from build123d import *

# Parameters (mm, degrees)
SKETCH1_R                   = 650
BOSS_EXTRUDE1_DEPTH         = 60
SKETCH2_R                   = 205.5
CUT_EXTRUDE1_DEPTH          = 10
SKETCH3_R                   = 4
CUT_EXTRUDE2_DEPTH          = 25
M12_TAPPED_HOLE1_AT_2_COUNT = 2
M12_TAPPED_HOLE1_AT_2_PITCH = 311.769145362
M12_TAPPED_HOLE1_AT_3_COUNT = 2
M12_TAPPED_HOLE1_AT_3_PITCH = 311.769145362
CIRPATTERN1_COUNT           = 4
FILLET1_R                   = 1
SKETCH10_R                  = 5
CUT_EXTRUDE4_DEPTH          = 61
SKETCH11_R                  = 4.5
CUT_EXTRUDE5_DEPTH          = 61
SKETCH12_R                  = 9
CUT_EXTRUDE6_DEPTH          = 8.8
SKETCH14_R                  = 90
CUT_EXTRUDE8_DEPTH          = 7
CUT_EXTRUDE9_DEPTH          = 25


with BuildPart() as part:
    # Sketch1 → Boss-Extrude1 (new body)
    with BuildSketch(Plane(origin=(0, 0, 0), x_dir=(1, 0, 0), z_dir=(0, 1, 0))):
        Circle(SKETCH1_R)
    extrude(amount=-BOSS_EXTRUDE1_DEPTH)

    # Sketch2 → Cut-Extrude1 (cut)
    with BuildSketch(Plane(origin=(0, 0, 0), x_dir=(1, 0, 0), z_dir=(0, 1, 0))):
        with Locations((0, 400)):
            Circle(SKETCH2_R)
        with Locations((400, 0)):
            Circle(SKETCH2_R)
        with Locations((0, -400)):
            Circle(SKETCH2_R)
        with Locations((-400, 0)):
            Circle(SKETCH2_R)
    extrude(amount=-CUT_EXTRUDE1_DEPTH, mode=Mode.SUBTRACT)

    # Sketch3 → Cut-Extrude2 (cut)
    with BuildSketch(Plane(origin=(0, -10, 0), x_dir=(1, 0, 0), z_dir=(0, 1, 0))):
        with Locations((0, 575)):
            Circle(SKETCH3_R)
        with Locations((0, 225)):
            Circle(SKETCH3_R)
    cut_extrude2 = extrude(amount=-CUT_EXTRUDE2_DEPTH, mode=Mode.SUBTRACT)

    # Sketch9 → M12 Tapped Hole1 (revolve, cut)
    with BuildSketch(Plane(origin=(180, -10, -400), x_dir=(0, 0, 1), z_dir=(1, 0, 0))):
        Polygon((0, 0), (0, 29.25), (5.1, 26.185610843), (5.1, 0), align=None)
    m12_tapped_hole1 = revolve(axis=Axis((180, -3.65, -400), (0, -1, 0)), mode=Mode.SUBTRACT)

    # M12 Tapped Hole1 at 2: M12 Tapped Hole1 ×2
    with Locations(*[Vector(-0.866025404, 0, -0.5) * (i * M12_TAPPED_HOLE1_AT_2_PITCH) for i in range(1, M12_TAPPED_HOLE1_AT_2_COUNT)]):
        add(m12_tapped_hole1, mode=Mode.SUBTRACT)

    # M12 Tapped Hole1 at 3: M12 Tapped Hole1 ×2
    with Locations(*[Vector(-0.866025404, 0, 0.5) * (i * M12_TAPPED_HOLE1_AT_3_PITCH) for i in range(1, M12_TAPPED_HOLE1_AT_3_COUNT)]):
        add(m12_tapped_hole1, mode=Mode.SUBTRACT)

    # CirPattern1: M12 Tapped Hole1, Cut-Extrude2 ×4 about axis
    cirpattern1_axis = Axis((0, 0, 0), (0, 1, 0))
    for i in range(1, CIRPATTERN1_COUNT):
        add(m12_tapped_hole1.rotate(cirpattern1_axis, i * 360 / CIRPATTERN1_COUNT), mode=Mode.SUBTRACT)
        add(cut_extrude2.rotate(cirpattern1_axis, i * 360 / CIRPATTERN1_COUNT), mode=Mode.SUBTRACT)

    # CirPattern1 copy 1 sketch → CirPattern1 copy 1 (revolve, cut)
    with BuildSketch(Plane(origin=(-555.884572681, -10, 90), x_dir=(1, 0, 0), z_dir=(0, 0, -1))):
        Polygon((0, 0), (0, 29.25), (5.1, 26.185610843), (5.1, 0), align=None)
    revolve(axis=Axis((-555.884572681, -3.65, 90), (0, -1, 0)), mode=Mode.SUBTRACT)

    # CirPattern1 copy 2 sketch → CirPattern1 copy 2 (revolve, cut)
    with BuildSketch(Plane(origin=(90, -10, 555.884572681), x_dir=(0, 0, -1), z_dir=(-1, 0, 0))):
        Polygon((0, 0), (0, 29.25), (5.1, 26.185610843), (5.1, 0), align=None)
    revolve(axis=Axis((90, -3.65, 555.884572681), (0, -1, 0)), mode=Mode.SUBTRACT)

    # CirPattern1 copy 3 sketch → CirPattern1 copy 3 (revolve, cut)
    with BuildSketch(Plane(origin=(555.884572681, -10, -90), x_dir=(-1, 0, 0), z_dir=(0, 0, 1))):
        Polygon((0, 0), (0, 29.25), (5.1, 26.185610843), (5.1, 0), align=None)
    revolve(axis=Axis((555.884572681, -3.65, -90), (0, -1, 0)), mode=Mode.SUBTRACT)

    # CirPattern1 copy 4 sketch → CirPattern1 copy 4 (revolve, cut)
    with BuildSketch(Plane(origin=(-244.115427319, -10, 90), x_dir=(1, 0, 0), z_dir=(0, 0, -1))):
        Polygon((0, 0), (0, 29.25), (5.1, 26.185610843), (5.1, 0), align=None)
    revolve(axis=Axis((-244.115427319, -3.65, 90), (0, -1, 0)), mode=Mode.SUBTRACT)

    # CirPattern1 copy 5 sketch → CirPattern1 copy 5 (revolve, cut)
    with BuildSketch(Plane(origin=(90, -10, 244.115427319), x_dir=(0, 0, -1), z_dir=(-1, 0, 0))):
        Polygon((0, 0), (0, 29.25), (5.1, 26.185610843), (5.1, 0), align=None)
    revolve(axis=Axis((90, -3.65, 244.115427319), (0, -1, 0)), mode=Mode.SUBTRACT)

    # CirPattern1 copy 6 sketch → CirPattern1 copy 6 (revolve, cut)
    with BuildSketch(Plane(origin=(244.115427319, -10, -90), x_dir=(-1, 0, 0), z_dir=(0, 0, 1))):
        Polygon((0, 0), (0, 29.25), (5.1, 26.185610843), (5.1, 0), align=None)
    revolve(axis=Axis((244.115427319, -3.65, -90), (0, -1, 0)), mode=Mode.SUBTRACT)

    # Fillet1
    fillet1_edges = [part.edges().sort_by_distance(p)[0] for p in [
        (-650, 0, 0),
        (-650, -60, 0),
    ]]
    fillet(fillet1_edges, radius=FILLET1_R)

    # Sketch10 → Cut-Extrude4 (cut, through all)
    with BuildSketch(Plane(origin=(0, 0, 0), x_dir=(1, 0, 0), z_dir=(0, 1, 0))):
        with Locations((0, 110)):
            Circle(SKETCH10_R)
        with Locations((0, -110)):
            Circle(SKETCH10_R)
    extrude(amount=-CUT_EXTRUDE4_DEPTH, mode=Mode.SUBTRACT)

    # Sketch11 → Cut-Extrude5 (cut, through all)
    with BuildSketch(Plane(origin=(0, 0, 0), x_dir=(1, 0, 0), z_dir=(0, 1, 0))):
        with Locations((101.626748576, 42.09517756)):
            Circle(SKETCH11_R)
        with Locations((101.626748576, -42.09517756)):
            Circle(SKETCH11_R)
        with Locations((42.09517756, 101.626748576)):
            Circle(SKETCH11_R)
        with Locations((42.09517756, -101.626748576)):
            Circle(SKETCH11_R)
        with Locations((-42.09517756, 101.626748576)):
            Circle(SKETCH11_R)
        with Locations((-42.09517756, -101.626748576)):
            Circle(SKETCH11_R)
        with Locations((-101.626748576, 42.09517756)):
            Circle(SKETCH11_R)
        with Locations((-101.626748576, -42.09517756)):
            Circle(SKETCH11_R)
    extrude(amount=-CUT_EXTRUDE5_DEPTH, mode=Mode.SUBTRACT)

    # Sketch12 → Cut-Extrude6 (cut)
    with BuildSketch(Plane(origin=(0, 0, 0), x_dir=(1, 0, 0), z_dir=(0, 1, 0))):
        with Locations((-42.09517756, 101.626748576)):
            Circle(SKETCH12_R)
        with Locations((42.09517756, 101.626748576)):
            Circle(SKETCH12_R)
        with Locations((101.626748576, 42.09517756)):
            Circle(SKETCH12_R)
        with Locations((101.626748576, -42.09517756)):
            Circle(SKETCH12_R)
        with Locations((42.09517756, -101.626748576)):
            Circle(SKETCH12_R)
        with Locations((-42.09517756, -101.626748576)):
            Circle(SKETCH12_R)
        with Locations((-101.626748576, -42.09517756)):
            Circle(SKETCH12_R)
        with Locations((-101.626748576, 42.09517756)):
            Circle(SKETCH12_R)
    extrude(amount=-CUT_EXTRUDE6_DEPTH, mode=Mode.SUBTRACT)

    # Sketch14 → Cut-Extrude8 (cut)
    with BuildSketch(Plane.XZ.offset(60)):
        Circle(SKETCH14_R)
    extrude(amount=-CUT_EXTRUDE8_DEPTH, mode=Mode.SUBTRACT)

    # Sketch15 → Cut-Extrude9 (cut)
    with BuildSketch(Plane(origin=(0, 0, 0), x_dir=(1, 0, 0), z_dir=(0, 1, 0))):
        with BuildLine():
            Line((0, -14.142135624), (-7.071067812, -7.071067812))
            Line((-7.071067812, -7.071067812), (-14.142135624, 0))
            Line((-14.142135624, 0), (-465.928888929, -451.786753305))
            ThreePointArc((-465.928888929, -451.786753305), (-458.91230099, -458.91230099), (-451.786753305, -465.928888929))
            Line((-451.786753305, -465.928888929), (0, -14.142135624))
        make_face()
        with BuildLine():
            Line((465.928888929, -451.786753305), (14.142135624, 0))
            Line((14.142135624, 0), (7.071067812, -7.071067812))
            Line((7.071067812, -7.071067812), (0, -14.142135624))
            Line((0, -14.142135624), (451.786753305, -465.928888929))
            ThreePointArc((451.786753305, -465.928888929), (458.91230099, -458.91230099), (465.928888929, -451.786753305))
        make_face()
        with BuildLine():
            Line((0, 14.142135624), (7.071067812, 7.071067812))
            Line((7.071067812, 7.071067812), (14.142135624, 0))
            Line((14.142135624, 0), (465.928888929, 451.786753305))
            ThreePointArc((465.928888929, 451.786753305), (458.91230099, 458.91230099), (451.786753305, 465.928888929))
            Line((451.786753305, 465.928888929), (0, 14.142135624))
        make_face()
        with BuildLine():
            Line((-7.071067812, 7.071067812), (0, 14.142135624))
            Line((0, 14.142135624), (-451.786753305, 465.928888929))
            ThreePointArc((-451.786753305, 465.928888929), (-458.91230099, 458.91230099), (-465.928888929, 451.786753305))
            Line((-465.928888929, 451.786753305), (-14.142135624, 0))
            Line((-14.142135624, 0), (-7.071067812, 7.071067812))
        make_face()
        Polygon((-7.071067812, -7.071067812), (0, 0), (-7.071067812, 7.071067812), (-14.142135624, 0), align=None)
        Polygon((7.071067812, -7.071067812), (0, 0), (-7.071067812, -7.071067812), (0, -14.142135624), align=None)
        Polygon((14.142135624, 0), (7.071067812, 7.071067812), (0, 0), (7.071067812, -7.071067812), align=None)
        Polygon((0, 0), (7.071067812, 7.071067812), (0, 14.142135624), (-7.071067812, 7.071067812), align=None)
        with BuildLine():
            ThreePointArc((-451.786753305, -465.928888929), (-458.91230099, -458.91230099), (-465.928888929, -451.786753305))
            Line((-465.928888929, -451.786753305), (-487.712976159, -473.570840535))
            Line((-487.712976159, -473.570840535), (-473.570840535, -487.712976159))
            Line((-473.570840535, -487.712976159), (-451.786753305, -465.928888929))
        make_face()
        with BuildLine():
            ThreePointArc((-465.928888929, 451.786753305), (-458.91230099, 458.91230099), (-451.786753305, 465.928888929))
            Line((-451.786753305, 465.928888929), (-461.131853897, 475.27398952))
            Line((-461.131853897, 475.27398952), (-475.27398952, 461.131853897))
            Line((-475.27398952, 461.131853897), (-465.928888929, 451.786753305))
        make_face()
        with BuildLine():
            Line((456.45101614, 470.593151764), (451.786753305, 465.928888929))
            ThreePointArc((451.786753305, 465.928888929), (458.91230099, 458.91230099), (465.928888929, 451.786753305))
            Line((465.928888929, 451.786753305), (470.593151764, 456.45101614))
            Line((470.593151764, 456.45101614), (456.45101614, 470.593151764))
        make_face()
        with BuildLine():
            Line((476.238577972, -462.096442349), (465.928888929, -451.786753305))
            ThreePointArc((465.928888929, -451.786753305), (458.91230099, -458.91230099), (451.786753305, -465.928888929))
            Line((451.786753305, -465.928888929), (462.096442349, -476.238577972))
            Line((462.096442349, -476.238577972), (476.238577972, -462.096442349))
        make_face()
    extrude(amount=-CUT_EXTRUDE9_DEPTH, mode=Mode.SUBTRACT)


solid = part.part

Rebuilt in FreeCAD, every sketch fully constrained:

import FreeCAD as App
import Part
import Sketcher
Q = App.Units.Quantity


def edges_at(feature, points):
    """Names of the edges that pass closest to the given points."""
    edges = feature.Shape.Edges
    near = lambda p: min(range(len(edges)), key=lambda i: edges[i].distToShape(Part.Vertex(*p))[0])
    return sorted({f"Edge{near(p) + 1}" for p in points})

doc = App.newDocument("Part")
body = doc.addObject("PartDesign::Body", "Body")

# Sketch on XZ plane
sketch1 = body.newObject("Sketcher::SketchObject", "Sketch")
sketch1.AttachmentSupport = (doc.getObject("XZ_Plane"), [""])
sketch1.MapMode = "FlatFace"
sketch1.addGeometry(Part.Circle(App.Vector(0, 0, 0), App.Vector(0, 0, 1), 650), False)
sketch1.addConstraint(Sketcher.Constraint("Coincident", 0, 3, -1, 1))
sketch1.addConstraint(Sketcher.Constraint("Diameter", 0, 1300.0))
pad1 = body.newObject("PartDesign::Pad", "Pad")
pad1.Profile = sketch1
pad1.Length = 60

# Sketch on XZ plane
sketch2 = body.newObject("Sketcher::SketchObject", "Sketch001")
sketch2.AttachmentSupport = (doc.getObject("XZ_Plane"), [""])
sketch2.MapMode = "FlatFace"
sketch2.addGeometry(Part.Circle(App.Vector(0, -400, 0), App.Vector(0, 0, 1), 206), False)
sketch2.addGeometry(Part.Circle(App.Vector(400, 0, 0), App.Vector(0, 0, 1), 206), False)
sketch2.addGeometry(Part.Circle(App.Vector(0, 400, 0), App.Vector(0, 0, 1), 206), False)
sketch2.addGeometry(Part.Circle(App.Vector(-400, 0, 0), App.Vector(0, 0, 1), 206), False)
sketch2.addConstraint(Sketcher.Constraint("Equal", 0, 1))
sketch2.addConstraint(Sketcher.Constraint("Equal", 1, 2))
sketch2.addConstraint(Sketcher.Constraint("Equal", 2, 3))
sketch2.addConstraint(Sketcher.Constraint("Symmetric", 0, 3, 2, 3, -1, 1))
sketch2.addConstraint(Sketcher.Constraint("Symmetric", 1, 3, 3, 3, -1, 1))
sketch2.addConstraint(Sketcher.Constraint("PointOnObject", 0, 3, -2))
sketch2.addConstraint(Sketcher.Constraint("PointOnObject", 1, 3, -1))
sketch2.addConstraint(Sketcher.Constraint("Diameter", 0, 411.0))
sketch2.addConstraint(Sketcher.Constraint("DistanceY", 0, 3, -1, 1, 400.0))
sketch2.addConstraint(Sketcher.Constraint("DistanceX", -1, 1, 1, 3, 400.0))
pocket1 = body.newObject("PartDesign::Pocket", "Pocket")
pocket1.Profile = sketch2
pocket1.Length = 10
pocket1.Reversed = True

# Sketch on XZ plane
sketch3 = body.newObject("Sketcher::SketchObject", "Sketch002")
sketch3.AttachmentSupport = (doc.getObject("XZ_Plane"), [""])
sketch3.MapMode = "FlatFace"
sketch3.AttachmentOffset = App.Placement(App.Vector(0, 0, 10), App.Rotation())
sketch3.addGeometry(Part.Circle(App.Vector(0, -575, 0), App.Vector(0, 0, 1), 4), False)
sketch3.addGeometry(Part.Circle(App.Vector(0, -225, 0), App.Vector(0, 0, 1), 4), False)
sketch3.addConstraint(Sketcher.Constraint("Equal", 0, 1))
sketch3.addConstraint(Sketcher.Constraint("PointOnObject", 0, 3, -2))
sketch3.addConstraint(Sketcher.Constraint("PointOnObject", 1, 3, -2))
sketch3.addConstraint(Sketcher.Constraint("Diameter", 0, 8.0))
sketch3.addConstraint(Sketcher.Constraint("DistanceY", 0, 3, -1, 1, 575.0))
sketch3.addConstraint(Sketcher.Constraint("DistanceY", 1, 3, -1, 1, 225.0))
pocket2 = body.newObject("PartDesign::Pocket", "Pocket001")
pocket2.Profile = sketch3
pocket2.Length = 25
pocket2.Reversed = True

# Sketch on YZ plane
sketch4 = body.newObject("Sketcher::SketchObject", "Sketch003")
sketch4.AttachmentSupport = (doc.getObject("YZ_Plane"), [""])
sketch4.MapMode = "FlatFace"
sketch4.AttachmentOffset = App.Placement(App.Vector(0, 0, 180), App.Rotation())
sketch4.addGeometry(Part.LineSegment(App.Vector(-39, -400, 0), App.Vector(-10, -400, 0)), False)
sketch4.addGeometry(Part.LineSegment(App.Vector(-10, -400, 0), App.Vector(-10, -395, 0)), False)
sketch4.addGeometry(Part.LineSegment(App.Vector(-10, -395, 0), App.Vector(-36, -395, 0)), False)
sketch4.addGeometry(Part.LineSegment(App.Vector(-36, -395, 0), App.Vector(-39, -400, 0)), False)
sketch4.addGeometry(Part.LineSegment(App.Vector(-10, -400, 0), App.Vector(-39, -400, 0)), True)  # axis
sketch4.addConstraint(Sketcher.Constraint("Coincident", 0, 2, 1, 1))
sketch4.addConstraint(Sketcher.Constraint("Coincident", 1, 2, 2, 1))
sketch4.addConstraint(Sketcher.Constraint("Coincident", 2, 2, 3, 1))
sketch4.addConstraint(Sketcher.Constraint("Coincident", 3, 2, 0, 1))
sketch4.addConstraint(Sketcher.Constraint("Horizontal", 0))
sketch4.addConstraint(Sketcher.Constraint("Vertical", 1))
sketch4.addConstraint(Sketcher.Constraint("Horizontal", 2))
sketch4.addConstraint(Sketcher.Constraint("Horizontal", 4))
sketch4.addConstraint(Sketcher.Constraint("Coincident", 4, 1, 0, 2))
sketch4.addConstraint(Sketcher.Constraint("Equal", 0, 4))
sketch4.addConstraint(Sketcher.Constraint("Angle", 3, Q("-121 deg")))
sketch4.addConstraint(Sketcher.Constraint("DistanceY", 1, 1, 1, 2, 5.1))
sketch4.addConstraint(Sketcher.Constraint("DistanceX", 0, 2, -1, 1, 10.0))
sketch4.addConstraint(Sketcher.Constraint("DistanceY", 0, 2, -1, 1, 400.0))
sketch4.addConstraint(Sketcher.Constraint("DistanceX", 0, 1, 0, 2, 29.25))
groove = body.newObject("PartDesign::Groove", "Groove")
groove.Profile = sketch4
groove.ReferenceAxis = (sketch4, ["Axis0"])
groove.Angle = 360
doc.recompute()

datumline = body.newObject("PartDesign::Line", "DatumLine")
datumline.Placement = App.Placement(App.Vector(0, 0, 0), App.Rotation(App.Vector(0, 0, 1), App.Vector(-0.866025404, 0, -0.5)))
linearpattern = body.newObject("PartDesign::LinearPattern", "LinearPattern")
linearpattern.Originals = [groove]
linearpattern.Direction = (datumline, [""])
linearpattern.Mode = "offset"
linearpattern.Offset = 311.769145
linearpattern.Occurrences = 2
body.Tip = linearpattern
doc.recompute()

datumline2 = body.newObject("PartDesign::Line", "DatumLine001")
datumline2.Placement = App.Placement(App.Vector(0, 0, 0), App.Rotation(App.Vector(0, 0, 1), App.Vector(-0.866025404, 0, 0.5)))
linearpattern2 = body.newObject("PartDesign::LinearPattern", "LinearPattern001")
linearpattern2.Originals = [groove]
linearpattern2.Direction = (datumline2, [""])
linearpattern2.Mode = "offset"
linearpattern2.Offset = 311.769145
linearpattern2.Occurrences = 2
body.Tip = linearpattern2
doc.recompute()

polarpattern = body.newObject("PartDesign::PolarPattern", "PolarPattern")
polarpattern.Originals = [groove, pocket2]
polarpattern.Axis = (doc.getObject("Y_Axis"), [""])
polarpattern.Angle = 360
polarpattern.Occurrences = 4
body.Tip = polarpattern

# Sketch on XY plane
sketch5 = body.newObject("Sketcher::SketchObject", "Sketch004")
sketch5.AttachmentSupport = (doc.getObject("XY_Plane"), [""])
sketch5.MapMode = "FlatFace"
sketch5.AttachmentOffset = App.Placement(App.Vector(0, 0, 90), App.Rotation())
sketch5.addGeometry(Part.LineSegment(App.Vector(-556, -39, 0), App.Vector(-556, -10, 0)), False)
sketch5.addGeometry(Part.LineSegment(App.Vector(-556, -10, 0), App.Vector(-551, -10, 0)), False)
sketch5.addGeometry(Part.LineSegment(App.Vector(-551, -10, 0), App.Vector(-551, -36, 0)), False)
sketch5.addGeometry(Part.LineSegment(App.Vector(-551, -36, 0), App.Vector(-556, -39, 0)), False)
sketch5.addGeometry(Part.LineSegment(App.Vector(-556, -10, 0), App.Vector(-556, -39, 0)), True)  # axis
sketch5.addConstraint(Sketcher.Constraint("Coincident", 0, 2, 1, 1))
sketch5.addConstraint(Sketcher.Constraint("Coincident", 1, 2, 2, 1))
sketch5.addConstraint(Sketcher.Constraint("Coincident", 2, 2, 3, 1))
sketch5.addConstraint(Sketcher.Constraint("Coincident", 3, 2, 0, 1))
sketch5.addConstraint(Sketcher.Constraint("Vertical", 0))
sketch5.addConstraint(Sketcher.Constraint("Horizontal", 1))
sketch5.addConstraint(Sketcher.Constraint("Vertical", 2))
sketch5.addConstraint(Sketcher.Constraint("Vertical", 4))
sketch5.addConstraint(Sketcher.Constraint("Coincident", 4, 1, 0, 2))
sketch5.addConstraint(Sketcher.Constraint("Equal", 0, 4))
sketch5.addConstraint(Sketcher.Constraint("Angle", 3, Q("-149 deg")))
sketch5.addConstraint(Sketcher.Constraint("DistanceX", 1, 1, 1, 2, 5.1))
sketch5.addConstraint(Sketcher.Constraint("DistanceY", 0, 2, -1, 1, 10.0))
sketch5.addConstraint(Sketcher.Constraint("DistanceY", 0, 1, 0, 2, 29.25))
sketch5.addConstraint(Sketcher.Constraint("DistanceX", 0, 2, -1, 1, 555.884573))
groove2 = body.newObject("PartDesign::Groove", "Groove001")
groove2.Profile = sketch5
groove2.ReferenceAxis = (sketch5, ["Axis0"])
groove2.Angle = 360

# Sketch on YZ plane
sketch6 = body.newObject("Sketcher::SketchObject", "Sketch005")
sketch6.AttachmentSupport = (doc.getObject("YZ_Plane"), [""])
sketch6.MapMode = "FlatFace"
sketch6.AttachmentOffset = App.Placement(App.Vector(0, 0, 90), App.Rotation())
sketch6.addGeometry(Part.LineSegment(App.Vector(-39, 556, 0), App.Vector(-10, 556, 0)), False)
sketch6.addGeometry(Part.LineSegment(App.Vector(-10, 556, 0), App.Vector(-10, 551, 0)), False)
sketch6.addGeometry(Part.LineSegment(App.Vector(-10, 551, 0), App.Vector(-36, 551, 0)), False)
sketch6.addGeometry(Part.LineSegment(App.Vector(-36, 551, 0), App.Vector(-39, 556, 0)), False)
sketch6.addGeometry(Part.LineSegment(App.Vector(-10, 556, 0), App.Vector(-39, 556, 0)), True)  # axis
sketch6.addConstraint(Sketcher.Constraint("Coincident", 0, 2, 1, 1))
sketch6.addConstraint(Sketcher.Constraint("Coincident", 1, 2, 2, 1))
sketch6.addConstraint(Sketcher.Constraint("Coincident", 2, 2, 3, 1))
sketch6.addConstraint(Sketcher.Constraint("Coincident", 3, 2, 0, 1))
sketch6.addConstraint(Sketcher.Constraint("Horizontal", 0))
sketch6.addConstraint(Sketcher.Constraint("Vertical", 1))
sketch6.addConstraint(Sketcher.Constraint("Horizontal", 2))
sketch6.addConstraint(Sketcher.Constraint("Horizontal", 4))
sketch6.addConstraint(Sketcher.Constraint("Coincident", 4, 1, 0, 2))
sketch6.addConstraint(Sketcher.Constraint("Equal", 0, 4))
sketch6.addConstraint(Sketcher.Constraint("Angle", 3, Q("121 deg")))
sketch6.addConstraint(Sketcher.Constraint("DistanceY", 1, 2, 1, 1, 5.1))
sketch6.addConstraint(Sketcher.Constraint("DistanceX", 0, 2, -1, 1, 10.0))
sketch6.addConstraint(Sketcher.Constraint("DistanceX", 0, 1, 0, 2, 29.25))
sketch6.addConstraint(Sketcher.Constraint("DistanceY", -1, 1, 0, 2, 555.884573))
groove3 = body.newObject("PartDesign::Groove", "Groove002")
groove3.Profile = sketch6
groove3.ReferenceAxis = (sketch6, ["Axis0"])
groove3.Angle = 360

# Sketch on XY plane
sketch7 = body.newObject("Sketcher::SketchObject", "Sketch006")
sketch7.AttachmentSupport = (doc.getObject("XY_Plane"), [""])
sketch7.MapMode = "FlatFace"
sketch7.AttachmentOffset = App.Placement(App.Vector(0, 0, -90), App.Rotation())
sketch7.addGeometry(Part.LineSegment(App.Vector(556, -39, 0), App.Vector(556, -10, 0)), False)
sketch7.addGeometry(Part.LineSegment(App.Vector(556, -10, 0), App.Vector(551, -10, 0)), False)
sketch7.addGeometry(Part.LineSegment(App.Vector(551, -10, 0), App.Vector(551, -36, 0)), False)
sketch7.addGeometry(Part.LineSegment(App.Vector(551, -36, 0), App.Vector(556, -39, 0)), False)
sketch7.addGeometry(Part.LineSegment(App.Vector(556, -10, 0), App.Vector(556, -39, 0)), True)  # axis
sketch7.addConstraint(Sketcher.Constraint("Coincident", 0, 2, 1, 1))
sketch7.addConstraint(Sketcher.Constraint("Coincident", 1, 2, 2, 1))
sketch7.addConstraint(Sketcher.Constraint("Coincident", 2, 2, 3, 1))
sketch7.addConstraint(Sketcher.Constraint("Coincident", 3, 2, 0, 1))
sketch7.addConstraint(Sketcher.Constraint("Vertical", 0))
sketch7.addConstraint(Sketcher.Constraint("Horizontal", 1))
sketch7.addConstraint(Sketcher.Constraint("Vertical", 2))
sketch7.addConstraint(Sketcher.Constraint("Vertical", 4))
sketch7.addConstraint(Sketcher.Constraint("Coincident", 4, 1, 0, 2))
sketch7.addConstraint(Sketcher.Constraint("Equal", 0, 4))
sketch7.addConstraint(Sketcher.Constraint("Angle", 3, Q("-31 deg")))
sketch7.addConstraint(Sketcher.Constraint("DistanceX", 1, 2, 1, 1, 5.1))
sketch7.addConstraint(Sketcher.Constraint("DistanceY", 0, 2, -1, 1, 10.0))
sketch7.addConstraint(Sketcher.Constraint("DistanceY", 0, 1, 0, 2, 29.25))
sketch7.addConstraint(Sketcher.Constraint("DistanceX", -1, 1, 0, 2, 555.884573))
groove4 = body.newObject("PartDesign::Groove", "Groove003")
groove4.Profile = sketch7
groove4.ReferenceAxis = (sketch7, ["Axis0"])
groove4.Angle = 360

# Sketch on XY plane
sketch8 = body.newObject("Sketcher::SketchObject", "Sketch007")
sketch8.AttachmentSupport = (doc.getObject("XY_Plane"), [""])
sketch8.MapMode = "FlatFace"
sketch8.AttachmentOffset = App.Placement(App.Vector(0, 0, 90), App.Rotation())
sketch8.addGeometry(Part.LineSegment(App.Vector(-244, -39, 0), App.Vector(-244, -10, 0)), False)
sketch8.addGeometry(Part.LineSegment(App.Vector(-244, -10, 0), App.Vector(-239, -10, 0)), False)
sketch8.addGeometry(Part.LineSegment(App.Vector(-239, -10, 0), App.Vector(-239, -36, 0)), False)
sketch8.addGeometry(Part.LineSegment(App.Vector(-239, -36, 0), App.Vector(-244, -39, 0)), False)
sketch8.addGeometry(Part.LineSegment(App.Vector(-244, -10, 0), App.Vector(-244, -39, 0)), True)  # axis
sketch8.addConstraint(Sketcher.Constraint("Coincident", 0, 2, 1, 1))
sketch8.addConstraint(Sketcher.Constraint("Coincident", 1, 2, 2, 1))
sketch8.addConstraint(Sketcher.Constraint("Coincident", 2, 2, 3, 1))
sketch8.addConstraint(Sketcher.Constraint("Coincident", 3, 2, 0, 1))
sketch8.addConstraint(Sketcher.Constraint("Vertical", 0))
sketch8.addConstraint(Sketcher.Constraint("Horizontal", 1))
sketch8.addConstraint(Sketcher.Constraint("Vertical", 2))
sketch8.addConstraint(Sketcher.Constraint("Vertical", 4))
sketch8.addConstraint(Sketcher.Constraint("Coincident", 4, 1, 0, 2))
sketch8.addConstraint(Sketcher.Constraint("Equal", 0, 4))
sketch8.addConstraint(Sketcher.Constraint("Angle", 3, Q("-149 deg")))
sketch8.addConstraint(Sketcher.Constraint("DistanceX", 1, 1, 1, 2, 5.1))
sketch8.addConstraint(Sketcher.Constraint("DistanceY", 0, 2, -1, 1, 10.0))
sketch8.addConstraint(Sketcher.Constraint("DistanceY", 0, 1, 0, 2, 29.25))
sketch8.addConstraint(Sketcher.Constraint("DistanceX", 0, 2, -1, 1, 244.115427))
groove5 = body.newObject("PartDesign::Groove", "Groove004")
groove5.Profile = sketch8
groove5.ReferenceAxis = (sketch8, ["Axis0"])
groove5.Angle = 360

# Sketch on YZ plane
sketch9 = body.newObject("Sketcher::SketchObject", "Sketch008")
sketch9.AttachmentSupport = (doc.getObject("YZ_Plane"), [""])
sketch9.MapMode = "FlatFace"
sketch9.AttachmentOffset = App.Placement(App.Vector(0, 0, 90), App.Rotation())
sketch9.addGeometry(Part.LineSegment(App.Vector(-39, 244, 0), App.Vector(-10, 244, 0)), False)
sketch9.addGeometry(Part.LineSegment(App.Vector(-10, 244, 0), App.Vector(-10, 239, 0)), False)
sketch9.addGeometry(Part.LineSegment(App.Vector(-10, 239, 0), App.Vector(-36, 239, 0)), False)
sketch9.addGeometry(Part.LineSegment(App.Vector(-36, 239, 0), App.Vector(-39, 244, 0)), False)
sketch9.addGeometry(Part.LineSegment(App.Vector(-10, 244, 0), App.Vector(-39, 244, 0)), True)  # axis
sketch9.addConstraint(Sketcher.Constraint("Coincident", 0, 2, 1, 1))
sketch9.addConstraint(Sketcher.Constraint("Coincident", 1, 2, 2, 1))
sketch9.addConstraint(Sketcher.Constraint("Coincident", 2, 2, 3, 1))
sketch9.addConstraint(Sketcher.Constraint("Coincident", 3, 2, 0, 1))
sketch9.addConstraint(Sketcher.Constraint("Horizontal", 0))
sketch9.addConstraint(Sketcher.Constraint("Vertical", 1))
sketch9.addConstraint(Sketcher.Constraint("Horizontal", 2))
sketch9.addConstraint(Sketcher.Constraint("Horizontal", 4))
sketch9.addConstraint(Sketcher.Constraint("Coincident", 4, 1, 0, 2))
sketch9.addConstraint(Sketcher.Constraint("Equal", 0, 4))
sketch9.addConstraint(Sketcher.Constraint("Angle", 3, Q("121 deg")))
sketch9.addConstraint(Sketcher.Constraint("DistanceY", 1, 2, 1, 1, 5.1))
sketch9.addConstraint(Sketcher.Constraint("DistanceX", 0, 2, -1, 1, 10.0))
sketch9.addConstraint(Sketcher.Constraint("DistanceX", 0, 1, 0, 2, 29.25))
sketch9.addConstraint(Sketcher.Constraint("DistanceY", -1, 1, 0, 2, 244.115427))
groove6 = body.newObject("PartDesign::Groove", "Groove005")
groove6.Profile = sketch9
groove6.ReferenceAxis = (sketch9, ["Axis0"])
groove6.Angle = 360

# Sketch on XY plane
sketch10 = body.newObject("Sketcher::SketchObject", "Sketch009")
sketch10.AttachmentSupport = (doc.getObject("XY_Plane"), [""])
sketch10.MapMode = "FlatFace"
sketch10.AttachmentOffset = App.Placement(App.Vector(0, 0, -90), App.Rotation())
sketch10.addGeometry(Part.LineSegment(App.Vector(244, -39, 0), App.Vector(244, -10, 0)), False)
sketch10.addGeometry(Part.LineSegment(App.Vector(244, -10, 0), App.Vector(239, -10, 0)), False)
sketch10.addGeometry(Part.LineSegment(App.Vector(239, -10, 0), App.Vector(239, -36, 0)), False)
sketch10.addGeometry(Part.LineSegment(App.Vector(239, -36, 0), App.Vector(244, -39, 0)), False)
sketch10.addGeometry(Part.LineSegment(App.Vector(244, -10, 0), App.Vector(244, -39, 0)), True)  # axis
sketch10.addConstraint(Sketcher.Constraint("Coincident", 0, 2, 1, 1))
sketch10.addConstraint(Sketcher.Constraint("Coincident", 1, 2, 2, 1))
sketch10.addConstraint(Sketcher.Constraint("Coincident", 2, 2, 3, 1))
sketch10.addConstraint(Sketcher.Constraint("Coincident", 3, 2, 0, 1))
sketch10.addConstraint(Sketcher.Constraint("Vertical", 0))
sketch10.addConstraint(Sketcher.Constraint("Horizontal", 1))
sketch10.addConstraint(Sketcher.Constraint("Vertical", 2))
sketch10.addConstraint(Sketcher.Constraint("Vertical", 4))
sketch10.addConstraint(Sketcher.Constraint("Coincident", 4, 1, 0, 2))
sketch10.addConstraint(Sketcher.Constraint("Equal", 0, 4))
sketch10.addConstraint(Sketcher.Constraint("Angle", 3, Q("-31 deg")))
sketch10.addConstraint(Sketcher.Constraint("DistanceX", 1, 2, 1, 1, 5.1))
sketch10.addConstraint(Sketcher.Constraint("DistanceY", 0, 2, -1, 1, 10.0))
sketch10.addConstraint(Sketcher.Constraint("DistanceY", 0, 1, 0, 2, 29.25))
sketch10.addConstraint(Sketcher.Constraint("DistanceX", -1, 1, 0, 2, 244.115427))
groove7 = body.newObject("PartDesign::Groove", "Groove006")
groove7.Profile = sketch10
groove7.ReferenceAxis = (sketch10, ["Axis0"])
groove7.Angle = 360
doc.recompute()

fillet = body.newObject("PartDesign::Fillet", "Fillet")
fillet.Base = (groove7, edges_at(groove7, [(-650, 0, 0), (-650, -60, 0)]))
fillet.Radius = 1

# Sketch on XZ plane
sketch11 = body.newObject("Sketcher::SketchObject", "Sketch010")
sketch11.AttachmentSupport = (doc.getObject("XZ_Plane"), [""])
sketch11.MapMode = "FlatFace"
sketch11.addGeometry(Part.Circle(App.Vector(0, -110, 0), App.Vector(0, 0, 1), 5), False)
sketch11.addGeometry(Part.Circle(App.Vector(0, 110, 0), App.Vector(0, 0, 1), 5), False)
sketch11.addConstraint(Sketcher.Constraint("Equal", 0, 1))
sketch11.addConstraint(Sketcher.Constraint("Symmetric", 0, 3, 1, 3, -1, 1))
sketch11.addConstraint(Sketcher.Constraint("PointOnObject", 0, 3, -2))
sketch11.addConstraint(Sketcher.Constraint("Diameter", 0, 10.0))
sketch11.addConstraint(Sketcher.Constraint("DistanceY", 0, 3, -1, 1, 110.0))
pocket3 = body.newObject("PartDesign::Pocket", "Pocket002")
pocket3.Profile = sketch11
pocket3.Type = "ThroughAll"
pocket3.Reversed = True

# Sketch on XZ plane
sketch12 = body.newObject("Sketcher::SketchObject", "Sketch011")
sketch12.AttachmentSupport = (doc.getObject("XZ_Plane"), [""])
sketch12.MapMode = "FlatFace"
sketch12.addGeometry(Part.Circle(App.Vector(101.6, -42.1, 0), App.Vector(0, 0, 1), 4.5), False)
sketch12.addGeometry(Part.Circle(App.Vector(101.6, 42.1, 0), App.Vector(0, 0, 1), 4.5), False)
sketch12.addGeometry(Part.Circle(App.Vector(42.1, -101.6, 0), App.Vector(0, 0, 1), 4.5), False)
sketch12.addGeometry(Part.Circle(App.Vector(42.1, 101.6, 0), App.Vector(0, 0, 1), 4.5), False)
sketch12.addGeometry(Part.Circle(App.Vector(-42.1, -101.6, 0), App.Vector(0, 0, 1), 4.5), False)
sketch12.addGeometry(Part.Circle(App.Vector(-42.1, 101.6, 0), App.Vector(0, 0, 1), 4.5), False)
sketch12.addGeometry(Part.Circle(App.Vector(-101.6, -42.1, 0), App.Vector(0, 0, 1), 4.5), False)
sketch12.addGeometry(Part.Circle(App.Vector(-101.6, 42.1, 0), App.Vector(0, 0, 1), 4.5), False)
sketch12.addConstraint(Sketcher.Constraint("Equal", 0, 1))
sketch12.addConstraint(Sketcher.Constraint("Equal", 1, 2))
sketch12.addConstraint(Sketcher.Constraint("Equal", 2, 3))
sketch12.addConstraint(Sketcher.Constraint("Equal", 3, 4))
sketch12.addConstraint(Sketcher.Constraint("Equal", 4, 5))
sketch12.addConstraint(Sketcher.Constraint("Equal", 5, 6))
sketch12.addConstraint(Sketcher.Constraint("Equal", 6, 7))
sketch12.addConstraint(Sketcher.Constraint("Symmetric", 3, 3, 4, 3, -1, 1))
sketch12.addConstraint(Sketcher.Constraint("Symmetric", 2, 3, 5, 3, -1, 1))
sketch12.addConstraint(Sketcher.Constraint("Symmetric", 1, 3, 6, 3, -1, 1))
sketch12.addConstraint(Sketcher.Constraint("Symmetric", 0, 3, 7, 3, -1, 1))
sketch12.addConstraint(Sketcher.Constraint("Symmetric", 2, 3, 4, 3, -2))
sketch12.addConstraint(Sketcher.Constraint("Symmetric", 0, 3, 6, 3, -2))
sketch12.addConstraint(Sketcher.Constraint("Diameter", 0, 9.0))
sketch12.addConstraint(Sketcher.Constraint("DistanceX", -1, 1, 0, 3, 101.626749))
sketch12.addConstraint(Sketcher.Constraint("DistanceY", 2, 3, -1, 1, 101.626749))
sketch12.addConstraint(Sketcher.Constraint("DistanceX", 2, 3, 0, 3, 59.531571))
sketch12.addConstraint(Sketcher.Constraint("DistanceY", 2, 3, 0, 3, 59.531571))
pocket4 = body.newObject("PartDesign::Pocket", "Pocket003")
pocket4.Profile = sketch12
pocket4.Type = "ThroughAll"
pocket4.Reversed = True

# Sketch on XZ plane
sketch13 = body.newObject("Sketcher::SketchObject", "Sketch012")
sketch13.AttachmentSupport = (doc.getObject("XZ_Plane"), [""])
sketch13.MapMode = "FlatFace"
sketch13.addGeometry(Part.Circle(App.Vector(-42, -102, 0), App.Vector(0, 0, 1), 9), False)
sketch13.addGeometry(Part.Circle(App.Vector(42, -102, 0), App.Vector(0, 0, 1), 9), False)
sketch13.addGeometry(Part.Circle(App.Vector(102, -42, 0), App.Vector(0, 0, 1), 9), False)
sketch13.addGeometry(Part.Circle(App.Vector(102, 42, 0), App.Vector(0, 0, 1), 9), False)
sketch13.addGeometry(Part.Circle(App.Vector(42, 102, 0), App.Vector(0, 0, 1), 9), False)
sketch13.addGeometry(Part.Circle(App.Vector(-42, 102, 0), App.Vector(0, 0, 1), 9), False)
sketch13.addGeometry(Part.Circle(App.Vector(-102, 42, 0), App.Vector(0, 0, 1), 9), False)
sketch13.addGeometry(Part.Circle(App.Vector(-102, -42, 0), App.Vector(0, 0, 1), 9), False)
sketch13.addConstraint(Sketcher.Constraint("Equal", 0, 1))
sketch13.addConstraint(Sketcher.Constraint("Equal", 1, 2))
sketch13.addConstraint(Sketcher.Constraint("Equal", 2, 3))
sketch13.addConstraint(Sketcher.Constraint("Equal", 3, 4))
sketch13.addConstraint(Sketcher.Constraint("Equal", 4, 5))
sketch13.addConstraint(Sketcher.Constraint("Equal", 5, 6))
sketch13.addConstraint(Sketcher.Constraint("Equal", 6, 7))
sketch13.addConstraint(Sketcher.Constraint("Symmetric", 0, 3, 4, 3, -1, 1))
sketch13.addConstraint(Sketcher.Constraint("Symmetric", 1, 3, 5, 3, -1, 1))
sketch13.addConstraint(Sketcher.Constraint("Symmetric", 2, 3, 6, 3, -1, 1))
sketch13.addConstraint(Sketcher.Constraint("Symmetric", 3, 3, 7, 3, -1, 1))
sketch13.addConstraint(Sketcher.Constraint("Symmetric", 0, 3, 1, 3, -2))
sketch13.addConstraint(Sketcher.Constraint("Symmetric", 3, 3, 6, 3, -2))
sketch13.addConstraint(Sketcher.Constraint("Diameter", 0, 18.0))
sketch13.addConstraint(Sketcher.Constraint("DistanceY", 0, 3, -1, 1, 101.626749))
sketch13.addConstraint(Sketcher.Constraint("DistanceX", -1, 1, 2, 3, 101.626749))
sketch13.addConstraint(Sketcher.Constraint("DistanceX", 1, 3, 2, 3, 59.531571))
sketch13.addConstraint(Sketcher.Constraint("DistanceY", 1, 3, 2, 3, 59.531571))
pocket5 = body.newObject("PartDesign::Pocket", "Pocket004")
pocket5.Profile = sketch13
pocket5.Length = 8.8
pocket5.Reversed = True

# Sketch on XZ plane
sketch14 = body.newObject("Sketcher::SketchObject", "Sketch013")
sketch14.AttachmentSupport = (doc.getObject("XZ_Plane"), [""])
sketch14.MapMode = "FlatFace"
sketch14.AttachmentOffset = App.Placement(App.Vector(0, 0, 60), App.Rotation())
sketch14.addGeometry(Part.Circle(App.Vector(0, 0, 0), App.Vector(0, 0, 1), 90), False)
sketch14.addConstraint(Sketcher.Constraint("Coincident", 0, 3, -1, 1))
sketch14.addConstraint(Sketcher.Constraint("Diameter", 0, 180.0))
pocket6 = body.newObject("PartDesign::Pocket", "Pocket005")
pocket6.Profile = sketch14
pocket6.Length = 7

# Sketch on XZ plane
sketch15 = body.newObject("Sketcher::SketchObject", "Sketch014")
sketch15.AttachmentSupport = (doc.getObject("XZ_Plane"), [""])
sketch15.MapMode = "FlatFace"
sketch15.addGeometry(Part.LineSegment(App.Vector(0, -14, 0), App.Vector(-452, -466, 0)), False)
sketch15.addGeometry(Part.LineSegment(App.Vector(-452, -466, 0), App.Vector(-461, -475, 0)), False)
sketch15.addGeometry(Part.LineSegment(App.Vector(-461, -475, 0), App.Vector(-475, -461, 0)), False)
sketch15.addGeometry(Part.LineSegment(App.Vector(-475, -461, 0), App.Vector(-466, -452, 0)), False)
sketch15.addGeometry(Part.LineSegment(App.Vector(-466, -452, 0), App.Vector(-14, 0, 0)), False)
sketch15.addGeometry(Part.LineSegment(App.Vector(-14, 0, 0), App.Vector(-488, 474, 0)), False)
sketch15.addGeometry(Part.LineSegment(App.Vector(-488, 474, 0), App.Vector(-474, 488, 0)), False)
sketch15.addGeometry(Part.LineSegment(App.Vector(-474, 488, 0), App.Vector(0, 14, 0)), False)
sketch15.addGeometry(Part.LineSegment(App.Vector(0, 14, 0), App.Vector(452, 466, 0)), False)
sketch15.addGeometry(Part.LineSegment(App.Vector(452, 466, 0), App.Vector(462, 476, 0)), False)
sketch15.addGeometry(Part.LineSegment(App.Vector(462, 476, 0), App.Vector(476, 462, 0)), False)
sketch15.addGeometry(Part.LineSegment(App.Vector(476, 462, 0), App.Vector(466, 452, 0)), False)
sketch15.addGeometry(Part.LineSegment(App.Vector(466, 452, 0), App.Vector(14, 0, 0)), False)
sketch15.addGeometry(Part.LineSegment(App.Vector(14, 0, 0), App.Vector(471, -456, 0)), False)
sketch15.addGeometry(Part.LineSegment(App.Vector(471, -456, 0), App.Vector(456, -471, 0)), False)
sketch15.addGeometry(Part.LineSegment(App.Vector(456, -471, 0), App.Vector(0, -14, 0)), False)
sketch15.addConstraint(Sketcher.Constraint("Coincident", 0, 2, 1, 1))
sketch15.addConstraint(Sketcher.Constraint("Coincident", 1, 2, 2, 1))
sketch15.addConstraint(Sketcher.Constraint("Coincident", 2, 2, 3, 1))
sketch15.addConstraint(Sketcher.Constraint("Coincident", 3, 2, 4, 1))
sketch15.addConstraint(Sketcher.Constraint("Coincident", 4, 2, 5, 1))
sketch15.addConstraint(Sketcher.Constraint("Coincident", 5, 2, 6, 1))
sketch15.addConstraint(Sketcher.Constraint("Coincident", 6, 2, 7, 1))
sketch15.addConstraint(Sketcher.Constraint("Coincident", 7, 2, 8, 1))
sketch15.addConstraint(Sketcher.Constraint("Coincident", 8, 2, 9, 1))
sketch15.addConstraint(Sketcher.Constraint("Coincident", 9, 2, 10, 1))
sketch15.addConstraint(Sketcher.Constraint("Coincident", 10, 2, 11, 1))
sketch15.addConstraint(Sketcher.Constraint("Coincident", 11, 2, 12, 1))
sketch15.addConstraint(Sketcher.Constraint("Coincident", 12, 2, 13, 1))
sketch15.addConstraint(Sketcher.Constraint("Coincident", 13, 2, 14, 1))
sketch15.addConstraint(Sketcher.Constraint("Coincident", 14, 2, 15, 1))
sketch15.addConstraint(Sketcher.Constraint("Coincident", 15, 2, 0, 1))
sketch15.addConstraint(Sketcher.Constraint("Symmetric", 0, 2, 8, 2, -1, 1))
sketch15.addConstraint(Sketcher.Constraint("Symmetric", 3, 2, 11, 2, -1, 1))
sketch15.addConstraint(Sketcher.Constraint("Symmetric", 4, 2, 12, 2, -1, 1))
sketch15.addConstraint(Sketcher.Constraint("Symmetric", 7, 2, 15, 2, -1, 1))
sketch15.addConstraint(Sketcher.Constraint("PointOnObject", 4, 2, -1))
sketch15.addConstraint(Sketcher.Constraint("PointOnObject", 7, 2, -2))
sketch15.addConstraint(Sketcher.Constraint("Parallel", 0, 1))
sketch15.addConstraint(Sketcher.Constraint("Perpendicular", 1, 2))
sketch15.addConstraint(Sketcher.Constraint("Perpendicular", 2, 3))
sketch15.addConstraint(Sketcher.Constraint("Parallel", 3, 4))
sketch15.addConstraint(Sketcher.Constraint("Perpendicular", 4, 5))
sketch15.addConstraint(Sketcher.Constraint("Perpendicular", 5, 6))
sketch15.addConstraint(Sketcher.Constraint("Perpendicular", 6, 7))
sketch15.addConstraint(Sketcher.Constraint("Parallel", 8, 9))
sketch15.addConstraint(Sketcher.Constraint("Perpendicular", 9, 10))
sketch15.addConstraint(Sketcher.Constraint("Perpendicular", 10, 11))
sketch15.addConstraint(Sketcher.Constraint("Perpendicular", 12, 13))
sketch15.addConstraint(Sketcher.Constraint("Perpendicular", 13, 14))
sketch15.addConstraint(Sketcher.Constraint("Perpendicular", 14, 15))
sketch15.addConstraint(Sketcher.Constraint("Equal", 1, 3))
sketch15.addConstraint(Sketcher.Constraint("Equal", 0, 4))
sketch15.addConstraint(Sketcher.Constraint("Equal", 5, 7))
sketch15.addConstraint(Sketcher.Constraint("Distance", 2, 20.0))
sketch15.addConstraint(Sketcher.Constraint("DistanceX", 1, 2, 0, 2, 9.345101))
sketch15.addConstraint(Sketcher.Constraint("DistanceY", 9, 2, 6, 2, 11.474398))
sketch15.addConstraint(Sketcher.Constraint("DistanceY", 0, 2, -1, 1, 465.928889))
sketch15.addConstraint(Sketcher.Constraint("DistanceY", -1, 1, 5, 2, 473.570841))
sketch15.addConstraint(Sketcher.Constraint("DistanceX", -1, 1, 13, 2, 470.593152))
pocket7 = body.newObject("PartDesign::Pocket", "Pocket006")
pocket7.Profile = sketch15
pocket7.Length = 25
pocket7.Reversed = True

doc.recompute()
